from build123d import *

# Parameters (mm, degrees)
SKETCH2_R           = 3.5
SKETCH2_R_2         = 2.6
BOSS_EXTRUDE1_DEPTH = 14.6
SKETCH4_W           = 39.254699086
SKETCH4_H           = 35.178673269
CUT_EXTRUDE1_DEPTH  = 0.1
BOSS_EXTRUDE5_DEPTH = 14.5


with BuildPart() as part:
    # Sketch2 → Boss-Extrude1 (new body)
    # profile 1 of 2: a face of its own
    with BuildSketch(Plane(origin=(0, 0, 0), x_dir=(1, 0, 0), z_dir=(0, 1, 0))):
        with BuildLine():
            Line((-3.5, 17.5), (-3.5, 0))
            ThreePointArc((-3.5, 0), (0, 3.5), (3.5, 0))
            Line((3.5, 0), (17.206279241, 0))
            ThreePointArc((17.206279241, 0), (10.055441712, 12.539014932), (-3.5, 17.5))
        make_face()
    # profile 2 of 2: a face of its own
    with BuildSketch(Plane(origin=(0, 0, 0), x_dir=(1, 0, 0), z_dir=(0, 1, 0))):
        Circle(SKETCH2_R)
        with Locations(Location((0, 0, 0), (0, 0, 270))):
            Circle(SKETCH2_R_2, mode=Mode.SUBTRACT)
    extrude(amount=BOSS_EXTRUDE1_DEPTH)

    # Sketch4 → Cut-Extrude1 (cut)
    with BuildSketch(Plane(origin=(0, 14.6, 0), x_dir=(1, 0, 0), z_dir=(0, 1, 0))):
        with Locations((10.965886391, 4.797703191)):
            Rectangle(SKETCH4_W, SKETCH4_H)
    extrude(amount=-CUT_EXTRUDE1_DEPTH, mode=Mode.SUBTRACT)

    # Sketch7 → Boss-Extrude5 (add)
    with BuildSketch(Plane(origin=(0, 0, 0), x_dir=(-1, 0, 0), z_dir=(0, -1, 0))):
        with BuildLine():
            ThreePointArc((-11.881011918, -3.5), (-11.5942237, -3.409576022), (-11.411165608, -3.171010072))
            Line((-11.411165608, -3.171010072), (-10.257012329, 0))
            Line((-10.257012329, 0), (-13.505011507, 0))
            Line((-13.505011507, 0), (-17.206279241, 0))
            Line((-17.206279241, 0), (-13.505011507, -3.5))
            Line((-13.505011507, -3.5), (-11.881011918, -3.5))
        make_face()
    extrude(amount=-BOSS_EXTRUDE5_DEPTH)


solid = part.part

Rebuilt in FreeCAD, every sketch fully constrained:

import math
import FreeCAD as App
import Part
import Sketcher

V = App.Vector
Q = App.Units.Quantity

doc = App.newDocument("Part")
params = doc.addObject("Spreadsheet::Sheet", "Params")
for row, (alias, value) in enumerate([
    ("sketch1_radius", "21 mm"),
    ("sketch1_diameter", "5.2 mm"),
    ("sketch1_radius2", "3.5 mm"),
    ("sketch1_height", "17.5 mm"),
    ("pad1_length", "14.6 mm"),
    ("pocket1_length", "0.1 mm"),
    ("sketch3_radius", "0.5 mm"),
    ("pad2_length", "14.5 mm"),
], start=1):
    params.set(f"A{row}", alias)
    params.set(f"B{row}", "=" + value)
    params.setAlias(f"B{row}", alias)

body = doc.addObject("PartDesign::Body", "Body")

sketch1 = body.newObject("Sketcher::SketchObject", "Sketch")
sketch1.AttachmentSupport = (doc.getObject("XZ_Plane"), [""])
sketch1.MapMode = "FlatFace"
sketch1.addGeometry([
    Part.LineSegment(V(-3.5, -17.5, 0), V(-3.5, 0, 0)),
    Part.ArcOfCircle(Part.Circle(V(0, 0, 0), V(0, 0, 1), 3.5), math.radians(0), math.radians(180)),
    Part.LineSegment(V(3.5, 0, 0), V(17.2, 0, 0)),
    Part.ArcOfCircle(Part.Circle(V(-3.5, 3.5, 0), V(0, 0, 1), 21), math.radians(-90), math.radians(-10)),
    Part.Circle(V(0, 0, 0), V(0, 0, 1), 2.6),
], False)
sketch1.addConstraint([
    Sketcher.Constraint("Tangent", 0, 2, 1, 2),
    Sketcher.Constraint("Coincident", 1, 1, 2, 1),
    Sketcher.Constraint("Coincident", 2, 2, 3, 2),
    Sketcher.Constraint("Coincident", 3, 1, 0, 1),
    Sketcher.Constraint("Vertical", 0),
    Sketcher.Constraint("Horizontal", 2),
    Sketcher.Constraint("Coincident", 1, 3, -1, 1),
    Sketcher.Constraint("Coincident", 4, 3, -1, 1),
    Sketcher.Constraint("PointOnObject", 1, 1, -1),
    Sketcher.Constraint("Vertical", 3, 3, 0, 2),
    Sketcher.Constraint("Radius", 3, Q("21 mm")),
    Sketcher.Constraint("Diameter", 4, Q("5.2 mm")),
    Sketcher.Constraint("Radius", 1, Q("3.5 mm")),
    Sketcher.Constraint("DistanceY", 0, 1, 0, 2, Q("17.5 mm")),
])
sketch1.setExpression("Constraints[10]", "Params.sketch1_radius")
sketch1.setExpression("Constraints[11]", "Params.sketch1_diameter")
sketch1.setExpression("Constraints[12]", "Params.sketch1_radius2")
sketch1.setExpression("Constraints[13]", "Params.sketch1_height")
pad1 = body.newObject("PartDesign::Pad", "Pad")
pad1.Profile = sketch1
pad1.setExpression("Length", "Params.pad1_length")
pad1.Reversed = True

sketch2 = body.newObject("Sketcher::SketchObject", "Sketch001")
sketch2.AttachmentSupport = (doc.getObject("XZ_Plane"), [""])
sketch2.MapMode = "FlatFace"
sketch2.AttachmentOffset = App.Placement(V(0, 0, -14.6), App.Rotation())
sketch2.addGeometry([
    Part.LineSegment(V(-9, -22, 0), V(-9, 13, 0)),
    Part.LineSegment(V(-9, 13, 0), V(31, 13, 0)),
    Part.LineSegment(V(31, 13, 0), V(31, -22, 0)),
    Part.LineSegment(V(31, -22, 0), V(-9, -22, 0)),
], False)
sketch2.addConstraint([
    Sketcher.Constraint("Coincident", 0, 2, 1, 1),
    Sketcher.Constraint("Coincident", 1, 2, 2, 1),
    Sketcher.Constraint("Coincident", 2, 2, 3, 1),
    Sketcher.Constraint("Coincident", 3, 2, 0, 1),
    Sketcher.Constraint("Vertical", 0),
    Sketcher.Constraint("Horizontal", 1),
    Sketcher.Constraint("Vertical", 2),
    Sketcher.Constraint("Horizontal", 3),
    Sketcher.Constraint("DistanceX", 1, 1, 1, 2, Q("39.254699 mm")),
    Sketcher.Constraint("DistanceY", 0, 1, 0, 2, Q("35.178673 mm")),
    Sketcher.Constraint("DistanceY", 2, 2, -1, 1, Q("22.38704 mm")),
    Sketcher.Constraint("DistanceX", 0, 2, -1, 1, Q("8.661463 mm")),
])
pocket1 = body.newObject("PartDesign::Pocket", "Pocket")
pocket1.Profile = sketch2
pocket1.setExpression("Length", "Params.pocket1_length")
pocket1.Reversed = True

sketch3 = body.newObject("Sketcher::SketchObject", "Sketch002")
sketch3.AttachmentSupport = (doc.getObject("XZ_Plane"), [""])
sketch3.MapMode = "FlatFace"
sketch3.addGeometry([
    Part.ArcOfCircle(Part.Circle(V(11.9, 3, 0), V(0, 0, 1), 0.5), math.radians(90), math.radians(160)),
    Part.LineSegment(V(11.4, 3.2, 0), V(10.3, 0, 0)),
    Part.LineSegment(V(10.3, 0, 0), V(17.2, 0, 0)),
    Part.LineSegment(V(17.2, 0, 0), V(13.5, 3.5, 0)),
    Part.LineSegment(V(13.5, 3.5, 0), V(11.9, 3.5, 0)),
], False)
sketch3.addConstraint([
    Sketcher.Constraint("Tangent", 0, 2, 1, 1),
    Sketcher.Constraint("Coincident", 1, 2, 2, 1),
    Sketcher.Constraint("Coincident", 2, 2, 3, 1),
    Sketcher.Constraint("Coincident", 3, 2, 4, 1),
    Sketcher.Constraint("Tangent", 4, 2, 0, 1),
    Sketcher.Constraint("Horizontal", 2),
    Sketcher.Constraint("Horizontal", 4),
    Sketcher.Constraint("PointOnObject", 1, 2, -1),
    Sketcher.Constraint("Radius", 0, Q("0.5 mm")),
    Sketcher.Constraint("Angle", 1, Q("-110 deg")),
    Sketcher.Constraint("DistanceY", -1, 1, 0, 3, Q("3 mm")),
    Sketcher.Constraint("DistanceX", 4, 2, 4, 1, Q("1.624 mm")),
    Sketcher.Constraint("DistanceX", 2, 1, 2, 2, Q("6.949267 mm")),
    Sketcher.Constraint("DistanceX", -1, 1, 0, 3, Q("11.881012 mm")),
])
sketch3.setExpression("Constraints[8]", "Params.sketch3_radius")
pad2 = body.newObject("PartDesign::Pad", "Pad001")
pad2.Profile = sketch3
pad2.setExpression("Length", "Params.pad2_length")
pad2.Reversed = True

doc.recompute()
